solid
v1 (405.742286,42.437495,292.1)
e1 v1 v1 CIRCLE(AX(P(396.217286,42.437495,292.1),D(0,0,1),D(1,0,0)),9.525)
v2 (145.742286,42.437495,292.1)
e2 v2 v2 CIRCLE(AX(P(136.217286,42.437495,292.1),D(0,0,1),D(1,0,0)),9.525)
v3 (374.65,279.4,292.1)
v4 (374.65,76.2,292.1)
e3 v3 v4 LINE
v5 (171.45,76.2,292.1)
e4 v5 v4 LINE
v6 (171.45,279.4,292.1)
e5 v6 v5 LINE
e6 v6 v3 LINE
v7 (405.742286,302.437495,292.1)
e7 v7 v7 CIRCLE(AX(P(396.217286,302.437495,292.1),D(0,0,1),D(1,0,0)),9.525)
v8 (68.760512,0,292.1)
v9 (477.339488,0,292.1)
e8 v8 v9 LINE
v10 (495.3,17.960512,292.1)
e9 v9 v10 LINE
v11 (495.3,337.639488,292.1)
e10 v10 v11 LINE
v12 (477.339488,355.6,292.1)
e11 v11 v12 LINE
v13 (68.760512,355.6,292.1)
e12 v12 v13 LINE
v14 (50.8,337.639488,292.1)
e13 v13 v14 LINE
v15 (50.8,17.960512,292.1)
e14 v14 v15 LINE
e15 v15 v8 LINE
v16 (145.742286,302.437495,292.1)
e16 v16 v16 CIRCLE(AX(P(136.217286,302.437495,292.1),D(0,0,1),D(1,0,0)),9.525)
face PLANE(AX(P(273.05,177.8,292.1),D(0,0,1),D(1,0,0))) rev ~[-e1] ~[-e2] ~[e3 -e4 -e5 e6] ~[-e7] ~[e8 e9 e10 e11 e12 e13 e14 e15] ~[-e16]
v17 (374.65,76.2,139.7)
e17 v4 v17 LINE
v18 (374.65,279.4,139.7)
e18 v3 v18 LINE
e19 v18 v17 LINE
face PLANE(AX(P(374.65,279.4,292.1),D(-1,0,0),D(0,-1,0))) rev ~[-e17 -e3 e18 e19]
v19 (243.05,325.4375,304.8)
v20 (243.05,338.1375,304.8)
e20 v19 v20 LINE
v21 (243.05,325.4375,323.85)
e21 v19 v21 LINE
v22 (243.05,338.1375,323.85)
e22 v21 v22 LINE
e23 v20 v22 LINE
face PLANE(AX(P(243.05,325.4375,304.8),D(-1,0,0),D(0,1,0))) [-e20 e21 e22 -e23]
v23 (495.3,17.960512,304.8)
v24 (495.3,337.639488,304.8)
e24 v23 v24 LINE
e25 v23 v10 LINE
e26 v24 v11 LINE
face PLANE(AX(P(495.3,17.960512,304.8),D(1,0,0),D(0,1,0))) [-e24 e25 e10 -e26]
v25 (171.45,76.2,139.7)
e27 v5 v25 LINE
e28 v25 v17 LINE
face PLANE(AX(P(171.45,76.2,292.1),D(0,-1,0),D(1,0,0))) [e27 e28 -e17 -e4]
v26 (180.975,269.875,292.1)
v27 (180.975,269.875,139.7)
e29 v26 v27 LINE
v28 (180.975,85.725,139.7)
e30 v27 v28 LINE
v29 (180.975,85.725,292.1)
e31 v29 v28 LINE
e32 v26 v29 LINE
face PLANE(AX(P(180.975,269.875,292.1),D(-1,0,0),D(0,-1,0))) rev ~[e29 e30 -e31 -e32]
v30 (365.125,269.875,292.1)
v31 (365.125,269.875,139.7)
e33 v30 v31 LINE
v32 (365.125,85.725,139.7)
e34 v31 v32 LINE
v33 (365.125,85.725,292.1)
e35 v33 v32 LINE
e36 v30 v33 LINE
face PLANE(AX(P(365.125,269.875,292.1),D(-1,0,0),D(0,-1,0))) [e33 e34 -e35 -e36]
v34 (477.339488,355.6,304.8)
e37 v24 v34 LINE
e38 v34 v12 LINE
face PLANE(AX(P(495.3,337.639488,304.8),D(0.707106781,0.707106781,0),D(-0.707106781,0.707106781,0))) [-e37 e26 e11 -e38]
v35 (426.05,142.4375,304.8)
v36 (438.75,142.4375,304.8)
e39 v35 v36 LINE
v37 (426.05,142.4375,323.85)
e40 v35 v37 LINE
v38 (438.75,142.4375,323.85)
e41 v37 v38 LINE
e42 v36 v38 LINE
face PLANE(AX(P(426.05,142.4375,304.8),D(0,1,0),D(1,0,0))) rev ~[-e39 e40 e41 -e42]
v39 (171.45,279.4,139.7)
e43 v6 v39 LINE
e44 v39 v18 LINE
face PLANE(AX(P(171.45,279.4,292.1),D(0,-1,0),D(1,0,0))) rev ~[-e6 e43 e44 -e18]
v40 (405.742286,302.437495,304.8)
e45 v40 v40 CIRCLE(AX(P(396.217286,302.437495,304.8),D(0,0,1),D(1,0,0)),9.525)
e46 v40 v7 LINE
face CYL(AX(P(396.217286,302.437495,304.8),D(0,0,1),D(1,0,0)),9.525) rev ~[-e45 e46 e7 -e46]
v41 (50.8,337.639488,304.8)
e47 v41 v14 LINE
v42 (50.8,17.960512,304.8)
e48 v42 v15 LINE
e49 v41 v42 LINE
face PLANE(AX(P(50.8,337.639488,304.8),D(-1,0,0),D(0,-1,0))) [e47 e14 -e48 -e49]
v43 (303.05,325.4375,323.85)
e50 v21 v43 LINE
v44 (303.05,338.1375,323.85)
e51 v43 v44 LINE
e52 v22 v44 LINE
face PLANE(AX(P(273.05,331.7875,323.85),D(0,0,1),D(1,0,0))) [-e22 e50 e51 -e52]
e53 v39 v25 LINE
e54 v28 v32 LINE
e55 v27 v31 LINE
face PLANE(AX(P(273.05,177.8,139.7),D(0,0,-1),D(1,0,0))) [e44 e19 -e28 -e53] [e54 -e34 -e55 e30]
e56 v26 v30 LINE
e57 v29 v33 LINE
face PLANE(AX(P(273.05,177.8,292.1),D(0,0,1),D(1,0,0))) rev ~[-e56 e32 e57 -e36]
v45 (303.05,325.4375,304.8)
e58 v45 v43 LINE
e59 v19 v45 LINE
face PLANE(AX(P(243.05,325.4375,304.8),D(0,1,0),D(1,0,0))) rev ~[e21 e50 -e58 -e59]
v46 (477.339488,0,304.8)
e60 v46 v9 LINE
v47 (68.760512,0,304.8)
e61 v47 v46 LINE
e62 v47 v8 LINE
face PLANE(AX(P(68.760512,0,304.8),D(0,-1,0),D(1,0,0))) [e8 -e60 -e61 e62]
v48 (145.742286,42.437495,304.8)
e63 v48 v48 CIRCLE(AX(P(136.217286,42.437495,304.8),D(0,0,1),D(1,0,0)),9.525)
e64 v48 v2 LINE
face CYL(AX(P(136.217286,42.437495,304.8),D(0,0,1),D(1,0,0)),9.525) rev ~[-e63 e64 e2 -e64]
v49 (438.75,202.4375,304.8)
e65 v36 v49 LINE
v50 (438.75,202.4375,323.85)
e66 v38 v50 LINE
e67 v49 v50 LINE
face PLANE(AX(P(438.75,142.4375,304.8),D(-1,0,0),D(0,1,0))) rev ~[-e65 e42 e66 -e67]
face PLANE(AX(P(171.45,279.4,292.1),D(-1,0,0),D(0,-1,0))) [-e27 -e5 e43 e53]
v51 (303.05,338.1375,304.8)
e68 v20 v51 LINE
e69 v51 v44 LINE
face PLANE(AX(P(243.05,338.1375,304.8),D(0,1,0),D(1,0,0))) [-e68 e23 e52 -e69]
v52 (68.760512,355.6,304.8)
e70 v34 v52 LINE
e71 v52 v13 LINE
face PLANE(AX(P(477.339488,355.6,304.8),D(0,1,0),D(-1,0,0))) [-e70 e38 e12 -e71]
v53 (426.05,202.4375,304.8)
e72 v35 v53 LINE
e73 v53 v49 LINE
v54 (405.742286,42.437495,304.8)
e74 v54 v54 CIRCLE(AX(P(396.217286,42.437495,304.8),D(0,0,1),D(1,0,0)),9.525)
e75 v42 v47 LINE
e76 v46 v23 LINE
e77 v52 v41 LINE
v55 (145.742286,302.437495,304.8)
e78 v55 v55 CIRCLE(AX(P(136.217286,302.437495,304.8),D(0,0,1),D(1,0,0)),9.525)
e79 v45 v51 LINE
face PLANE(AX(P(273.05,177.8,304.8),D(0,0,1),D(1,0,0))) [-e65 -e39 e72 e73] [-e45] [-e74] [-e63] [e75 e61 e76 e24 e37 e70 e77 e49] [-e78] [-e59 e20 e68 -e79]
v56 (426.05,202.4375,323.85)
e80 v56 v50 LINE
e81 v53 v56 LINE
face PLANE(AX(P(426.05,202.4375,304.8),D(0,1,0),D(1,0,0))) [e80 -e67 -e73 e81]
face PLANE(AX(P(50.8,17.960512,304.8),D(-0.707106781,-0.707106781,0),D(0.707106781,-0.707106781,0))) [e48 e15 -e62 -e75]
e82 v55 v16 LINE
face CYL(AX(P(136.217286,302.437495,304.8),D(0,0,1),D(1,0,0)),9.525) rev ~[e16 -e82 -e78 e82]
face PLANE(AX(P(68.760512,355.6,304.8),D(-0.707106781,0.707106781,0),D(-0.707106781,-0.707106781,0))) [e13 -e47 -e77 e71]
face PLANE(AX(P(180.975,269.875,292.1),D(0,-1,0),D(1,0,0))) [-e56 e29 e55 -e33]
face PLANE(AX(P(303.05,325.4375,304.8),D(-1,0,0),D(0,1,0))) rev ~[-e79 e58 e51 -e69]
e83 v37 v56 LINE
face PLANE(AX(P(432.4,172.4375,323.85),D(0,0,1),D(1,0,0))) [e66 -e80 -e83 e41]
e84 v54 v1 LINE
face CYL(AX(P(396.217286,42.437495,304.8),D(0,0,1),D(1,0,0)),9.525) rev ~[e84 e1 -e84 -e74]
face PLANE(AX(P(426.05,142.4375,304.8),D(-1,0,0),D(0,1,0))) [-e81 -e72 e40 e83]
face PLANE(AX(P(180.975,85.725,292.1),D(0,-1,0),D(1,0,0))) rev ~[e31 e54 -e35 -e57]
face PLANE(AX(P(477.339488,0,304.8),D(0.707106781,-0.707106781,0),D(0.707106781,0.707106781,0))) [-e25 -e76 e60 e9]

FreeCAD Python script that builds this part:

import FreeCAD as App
import Part
import Sketcher

V = App.Vector
Q = App.Units.Quantity

doc = App.newDocument("Part")
params = doc.addObject("Spreadsheet::Sheet", "Params")
for row, (alias, value) in enumerate([
    ("sketch1_length", "1 in"),
    ("pad1_length", "0.5 in"),
    ("sketch2_diameter", "0.75 in"),
    ("pocket1_length", "0.5 in"),
    ("sketch3_width", "0.5 in"),
    ("pad2_length", "0.75 in"),
    ("sketch4_width", "8 in"),
    ("sketch4_width2", "7.25 in"),
    ("pad3_length", "6 in"),
], start=1):
    params.set(f"A{row}", alias)
    params.set(f"B{row}", "=" + value)
    params.setAlias(f"B{row}", alias)

body = doc.addObject("PartDesign::Body", "Body")

sketch1 = body.newObject("Sketcher::SketchObject", "Sketch")
sketch1.AttachmentSupport = (doc.getObject("XY_Plane"), [""])
sketch1.MapMode = "FlatFace"
sketch1.AttachmentOffset = App.Placement(V(0, 0, 12 * 25.4), App.Rotation())
sketch1.addGeometry([
    Part.LineSegment(V(51, 18, 0), V(69, 0, 0)),
    Part.LineSegment(V(69, 0, 0), V(477, 0, 0)),
    Part.LineSegment(V(477, 0, 0), V(495, 18, 0)),
    Part.LineSegment(V(495, 18, 0), V(495, 338, 0)),
    Part.LineSegment(V(495, 338, 0), V(477, 356, 0)),
    Part.LineSegment(V(477, 356, 0), V(69, 356, 0)),
    Part.LineSegment(V(69, 356, 0), V(51, 338, 0)),
    Part.LineSegment(V(51, 338, 0), V(51, 18, 0)),
], False)
sketch1.addConstraint([
    Sketcher.Constraint("Coincident", 0, 2, 1, 1),
    Sketcher.Constraint("Coincident", 1, 2, 2, 1),
    Sketcher.Constraint("Coincident", 2, 2, 3, 1),
    Sketcher.Constraint("Coincident", 3, 2, 4, 1),
    Sketcher.Constraint("Coincident", 4, 2, 5, 1),
    Sketcher.Constraint("Coincident", 5, 2, 6, 1),
    Sketcher.Constraint("Coincident", 6, 2, 7, 1),
    Sketcher.Constraint("Coincident", 7, 2, 0, 1),
    Sketcher.Constraint("Horizontal", 1),
    Sketcher.Constraint("Vertical", 3),
    Sketcher.Constraint("Horizontal", 5),
    Sketcher.Constraint("Vertical", 7),
    Sketcher.Constraint("PointOnObject", 0, 2, -1),
    Sketcher.Constraint("Perpendicular", 0, 2),
    Sketcher.Constraint("Perpendicular", 2, 4),
    Sketcher.Constraint("Perpendicular", 4, 6),
    Sketcher.Constraint("Horizontal", 3, 2, 6, 2),
    Sketcher.Constraint("Horizontal", 2, 2, 7, 2),
    Sketcher.Constraint("Vertical", 1, 2, 4, 2),
    Sketcher.Constraint("Vertical", 0, 2, 5, 2),
    Sketcher.Constraint("Distance", 0, Q("1 in")),
    Sketcher.Constraint("DistanceY", -1, 1, 4, 2, Q("14 in")),
    Sketcher.Constraint("DistanceX", -1, 1, 6, 2, Q("2 in")),
    Sketcher.Constraint("DistanceX", -1, 1, 2, 2, Q("19.5 in")),
])
sketch1.setExpression("Constraints[20]", "Params.sketch1_length")
pad1 = body.newObject("PartDesign::Pad", "Pad")
pad1.Profile = sketch1
pad1.setExpression("Length", "Params.pad1_length")
pad1.Reversed = True

sketch2 = body.newObject("Sketcher::SketchObject", "Sketch001")
sketch2.AttachmentSupport = (doc.getObject("XY_Plane"), [""])
sketch2.MapMode = "FlatFace"
sketch2.AttachmentOffset = App.Placement(V(0, 0, 12 * 25.4), App.Rotation())
sketch2.addGeometry([
    Part.Circle(V(396, 302, 0), V(0, 0, 1), 10),
    Part.Circle(V(396, 42, 0), V(0, 0, 1), 10),
    Part.Circle(V(136, 302, 0), V(0, 0, 1), 10),
    Part.Circle(V(136, 42, 0), V(0, 0, 1), 10),
], False)
sketch2.addConstraint([
    Sketcher.Constraint("Equal", 0, 1),
    Sketcher.Constraint("Equal", 1, 2),
    Sketcher.Constraint("Equal", 2, 3),
    Sketcher.Constraint("Horizontal", 0, 3, 2, 3),
    Sketcher.Constraint("Horizontal", 1, 3, 3, 3),
    Sketcher.Constraint("Vertical", 0, 3, 1, 3),
    Sketcher.Constraint("Vertical", 2, 3, 3, 3),
    Sketcher.Constraint("Diameter", 0, Q("0.75 in")),
    Sketcher.Constraint("DistanceY", 1, 3, 0, 3, 260.0),
    Sketcher.Constraint("DistanceX", 2, 3, 0, 3, 260.0),
    Sketcher.Constraint("DistanceX", -1, 1, 0, 3, 396.217286),
    Sketcher.Constraint("DistanceY", -1, 1, 0, 3, 302.437495),
])
sketch2.setExpression("Constraints[7]", "Params.sketch2_diameter")
pocket1 = body.newObject("PartDesign::Pocket", "Pocket")
pocket1.Profile = sketch2
pocket1.setExpression("Length", "Params.pocket1_length")

sketch3 = body.newObject("Sketcher::SketchObject", "Sketch002")
sketch3.AttachmentSupport = (doc.getObject("XY_Plane"), [""])
sketch3.MapMode = "FlatFace"
sketch3.AttachmentOffset = App.Placement(V(0, 0, 12 * 25.4), App.Rotation())
sketch3.addGeometry([
    Part.LineSegment(V(243, 338, 0), V(243, 325, 0)),
    Part.LineSegment(V(243, 325, 0), V(303, 325, 0)),
    Part.LineSegment(V(303, 325, 0), V(303, 338, 0)),
    Part.LineSegment(V(303, 338, 0), V(243, 338, 0)),
    Part.LineSegment(V(426, 202, 0), V(426, 142, 0)),
    Part.LineSegment(V(426, 142, 0), V(439, 142, 0)),
    Part.LineSegment(V(439, 142, 0), V(439, 202, 0)),
    Part.LineSegment(V(439, 202, 0), V(426, 202, 0)),
], False)
sketch3.addConstraint([
    Sketcher.Constraint("Coincident", 0, 2, 1, 1),
    Sketcher.Constraint("Coincident", 1, 2, 2, 1),
    Sketcher.Constraint("Coincident", 2, 2, 3, 1),
    Sketcher.Constraint("Coincident", 3, 2, 0, 1),
    Sketcher.Constraint("Coincident", 4, 2, 5, 1),
    Sketcher.Constraint("Coincident", 5, 2, 6, 1),
    Sketcher.Constraint("Coincident", 6, 2, 7, 1),
    Sketcher.Constraint("Coincident", 7, 2, 4, 1),
    Sketcher.Constraint("Vertical", 0),
    Sketcher.Constraint("Horizontal", 1),
    Sketcher.Constraint("Vertical", 2),
    Sketcher.Constraint("Horizontal", 3),
    Sketcher.Constraint("Vertical", 4),
    Sketcher.Constraint("Horizontal", 5),
    Sketcher.Constraint("Vertical", 6),
    Sketcher.Constraint("Horizontal", 7),
    Sketcher.Constraint("Equal", 7, 0),
    Sketcher.Constraint("Equal", 3, 4),
    Sketcher.Constraint("DistanceX", 5, 1, 5, 2, Q("0.5 in")),
    Sketcher.Constraint("DistanceY", -1, 1, 0, 2, Q("12.8125 in")),
    Sketcher.Constraint("DistanceX", 1, 1, 1, 2, 60.0),
    Sketcher.Constraint("DistanceX", -1, 1, 0, 2, 243.05),
    Sketcher.Constraint("DistanceX", -1, 1, 4, 2, 426.05),
    Sketcher.Constraint("DistanceY", -1, 1, 4, 2, 142.4375),
])
sketch3.setExpression("Constraints[18]", "Params.sketch3_width")
pad2 = body.newObject("PartDesign::Pad", "Pad001")
pad2.Profile = sketch3
pad2.setExpression("Length", "Params.pad2_length")

sketch4 = body.newObject("Sketcher::SketchObject", "Sketch003")
sketch4.AttachmentSupport = (doc.getObject("XY_Plane"), [""])
sketch4.MapMode = "FlatFace"
sketch4.AttachmentOffset = App.Placement(V(0, 0, 11.5 * 25.4), App.Rotation())
sketch4.addGeometry([
    Part.LineSegment(V(171, 76, 0), V(171, 279, 0)),
    Part.LineSegment(V(171, 279, 0), V(375, 279, 0)),
    Part.LineSegment(V(375, 279, 0), V(375, 76, 0)),
    Part.LineSegment(V(375, 76, 0), V(171, 76, 0)),
    Part.LineSegment(V(365, 270, 0), V(181, 270, 0)),
    Part.LineSegment(V(181, 270, 0), V(181, 86, 0)),
    Part.LineSegment(V(181, 86, 0), V(365, 86, 0)),
    Part.LineSegment(V(365, 86, 0), V(365, 270, 0)),
], False)
sketch4.addConstraint([
    Sketcher.Constraint("Coincident", 0, 2, 1, 1),
    Sketcher.Constraint("Coincident", 1, 2, 2, 1),
    Sketcher.Constraint("Coincident", 2, 2, 3, 1),
    Sketcher.Constraint("Coincident", 3, 2, 0, 1),
    Sketcher.Constraint("Coincident", 4, 2, 5, 1),
    Sketcher.Constraint("Coincident", 5, 2, 6, 1),
    Sketcher.Constraint("Coincident", 6, 2, 7, 1),
    Sketcher.Constraint("Coincident", 7, 2, 4, 1),
    Sketcher.Constraint("Vertical", 0),
    Sketcher.Constraint("Horizontal", 1),
    Sketcher.Constraint("Vertical", 2),
    Sketcher.Constraint("Horizontal", 3),
    Sketcher.Constraint("Horizontal", 4),
    Sketcher.Constraint("Vertical", 5),
    Sketcher.Constraint("Horizontal", 6),
    Sketcher.Constraint("Vertical", 7),
    Sketcher.Constraint("Equal", 3, 0),
    Sketcher.Constraint("Equal", 6, 5),
    Sketcher.Constraint("DistanceX", 1, 1, 1, 2, Q("8 in")),
    Sketcher.Constraint("DistanceY", -1, 1, 0, 2, Q("11 in")),
    Sketcher.Constraint("DistanceX", 4, 2, 4, 1, Q("7.25 in")),
    Sketcher.Constraint("DistanceX", -1, 1, 0, 2, Q("6.75 in")),
    Sketcher.Constraint("DistanceX", -1, 1, 4, 2, Q("7.125 in")),
    Sketcher.Constraint("DistanceY", -1, 1, 4, 2, Q("10.625 in")),
])
sketch4.setExpression("Constraints[18]", "Params.sketch4_width")
sketch4.setExpression("Constraints[20]", "Params.sketch4_width2")
pad3 = body.newObject("PartDesign::Pad", "Pad002")
pad3.Profile = sketch4
pad3.setExpression("Length", "Params.pad3_length")
pad3.Reversed = True

doc.recompute()
